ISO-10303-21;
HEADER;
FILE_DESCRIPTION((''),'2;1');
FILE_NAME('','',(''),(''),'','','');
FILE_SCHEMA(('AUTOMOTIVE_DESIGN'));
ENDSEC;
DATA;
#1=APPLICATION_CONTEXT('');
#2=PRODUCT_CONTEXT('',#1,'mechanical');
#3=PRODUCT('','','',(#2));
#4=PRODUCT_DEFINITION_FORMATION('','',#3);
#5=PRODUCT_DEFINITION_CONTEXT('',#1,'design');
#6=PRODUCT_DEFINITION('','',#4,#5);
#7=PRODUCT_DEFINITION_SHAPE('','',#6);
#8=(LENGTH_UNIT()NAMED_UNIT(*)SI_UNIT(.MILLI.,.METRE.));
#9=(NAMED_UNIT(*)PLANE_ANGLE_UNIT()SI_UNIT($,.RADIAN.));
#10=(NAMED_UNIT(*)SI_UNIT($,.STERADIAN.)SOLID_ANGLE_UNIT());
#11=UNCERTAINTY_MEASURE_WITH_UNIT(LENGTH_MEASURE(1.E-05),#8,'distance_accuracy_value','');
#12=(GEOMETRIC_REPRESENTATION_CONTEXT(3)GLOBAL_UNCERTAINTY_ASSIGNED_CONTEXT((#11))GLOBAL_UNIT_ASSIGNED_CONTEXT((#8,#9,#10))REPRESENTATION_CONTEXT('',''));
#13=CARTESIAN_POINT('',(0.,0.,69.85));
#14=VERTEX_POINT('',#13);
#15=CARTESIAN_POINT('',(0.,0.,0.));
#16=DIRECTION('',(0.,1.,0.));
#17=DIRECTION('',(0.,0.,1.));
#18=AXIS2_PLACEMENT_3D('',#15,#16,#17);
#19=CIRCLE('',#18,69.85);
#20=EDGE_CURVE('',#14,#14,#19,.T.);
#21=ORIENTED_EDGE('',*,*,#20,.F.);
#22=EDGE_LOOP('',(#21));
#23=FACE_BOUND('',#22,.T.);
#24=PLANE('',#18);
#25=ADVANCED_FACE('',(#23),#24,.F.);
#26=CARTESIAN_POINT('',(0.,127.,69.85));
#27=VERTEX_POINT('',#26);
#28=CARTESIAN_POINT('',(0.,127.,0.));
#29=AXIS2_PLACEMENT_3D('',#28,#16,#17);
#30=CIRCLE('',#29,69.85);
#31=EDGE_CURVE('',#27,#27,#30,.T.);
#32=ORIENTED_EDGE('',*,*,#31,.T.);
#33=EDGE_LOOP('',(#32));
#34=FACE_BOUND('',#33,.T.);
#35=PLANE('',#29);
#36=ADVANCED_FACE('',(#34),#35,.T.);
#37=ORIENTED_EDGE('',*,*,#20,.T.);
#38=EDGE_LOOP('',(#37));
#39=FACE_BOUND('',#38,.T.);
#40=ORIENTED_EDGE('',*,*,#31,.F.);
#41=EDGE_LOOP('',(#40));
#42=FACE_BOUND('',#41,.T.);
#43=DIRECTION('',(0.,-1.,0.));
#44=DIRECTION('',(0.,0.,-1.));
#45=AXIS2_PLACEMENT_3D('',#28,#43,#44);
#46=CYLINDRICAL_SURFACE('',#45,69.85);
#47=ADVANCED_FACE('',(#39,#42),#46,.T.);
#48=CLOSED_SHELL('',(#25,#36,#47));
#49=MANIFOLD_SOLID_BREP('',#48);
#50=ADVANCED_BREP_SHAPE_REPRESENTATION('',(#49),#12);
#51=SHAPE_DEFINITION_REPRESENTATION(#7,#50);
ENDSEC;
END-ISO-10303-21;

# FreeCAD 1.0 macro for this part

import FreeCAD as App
import Part
import Sketcher

V = App.Vector
Q = App.Units.Quantity

doc = App.newDocument("Part")
body = doc.addObject("PartDesign::Body", "Body")

# Sketch on XZ plane
sketch1 = body.newObject("Sketcher::SketchObject", "Sketch")
sketch1.AttachmentSupport = (doc.getObject("XZ_Plane"), [""])
sketch1.MapMode = "FlatFace"
sketch1.addGeometry(Part.Circle(V(0, 0, 0), V(0, 0, 1), 70), False)
sketch1.addConstraint([
    Sketcher.Constraint("Coincident", 0, 3, -1, 1),
    Sketcher.Constraint("Diameter", 0, Q("5.5 in")),
])
pad1 = body.newObject("PartDesign::Pad", "Pad")
pad1.Profile = sketch1
pad1.Length = Q("5 in")
pad1.Reversed = True

doc.recompute()
